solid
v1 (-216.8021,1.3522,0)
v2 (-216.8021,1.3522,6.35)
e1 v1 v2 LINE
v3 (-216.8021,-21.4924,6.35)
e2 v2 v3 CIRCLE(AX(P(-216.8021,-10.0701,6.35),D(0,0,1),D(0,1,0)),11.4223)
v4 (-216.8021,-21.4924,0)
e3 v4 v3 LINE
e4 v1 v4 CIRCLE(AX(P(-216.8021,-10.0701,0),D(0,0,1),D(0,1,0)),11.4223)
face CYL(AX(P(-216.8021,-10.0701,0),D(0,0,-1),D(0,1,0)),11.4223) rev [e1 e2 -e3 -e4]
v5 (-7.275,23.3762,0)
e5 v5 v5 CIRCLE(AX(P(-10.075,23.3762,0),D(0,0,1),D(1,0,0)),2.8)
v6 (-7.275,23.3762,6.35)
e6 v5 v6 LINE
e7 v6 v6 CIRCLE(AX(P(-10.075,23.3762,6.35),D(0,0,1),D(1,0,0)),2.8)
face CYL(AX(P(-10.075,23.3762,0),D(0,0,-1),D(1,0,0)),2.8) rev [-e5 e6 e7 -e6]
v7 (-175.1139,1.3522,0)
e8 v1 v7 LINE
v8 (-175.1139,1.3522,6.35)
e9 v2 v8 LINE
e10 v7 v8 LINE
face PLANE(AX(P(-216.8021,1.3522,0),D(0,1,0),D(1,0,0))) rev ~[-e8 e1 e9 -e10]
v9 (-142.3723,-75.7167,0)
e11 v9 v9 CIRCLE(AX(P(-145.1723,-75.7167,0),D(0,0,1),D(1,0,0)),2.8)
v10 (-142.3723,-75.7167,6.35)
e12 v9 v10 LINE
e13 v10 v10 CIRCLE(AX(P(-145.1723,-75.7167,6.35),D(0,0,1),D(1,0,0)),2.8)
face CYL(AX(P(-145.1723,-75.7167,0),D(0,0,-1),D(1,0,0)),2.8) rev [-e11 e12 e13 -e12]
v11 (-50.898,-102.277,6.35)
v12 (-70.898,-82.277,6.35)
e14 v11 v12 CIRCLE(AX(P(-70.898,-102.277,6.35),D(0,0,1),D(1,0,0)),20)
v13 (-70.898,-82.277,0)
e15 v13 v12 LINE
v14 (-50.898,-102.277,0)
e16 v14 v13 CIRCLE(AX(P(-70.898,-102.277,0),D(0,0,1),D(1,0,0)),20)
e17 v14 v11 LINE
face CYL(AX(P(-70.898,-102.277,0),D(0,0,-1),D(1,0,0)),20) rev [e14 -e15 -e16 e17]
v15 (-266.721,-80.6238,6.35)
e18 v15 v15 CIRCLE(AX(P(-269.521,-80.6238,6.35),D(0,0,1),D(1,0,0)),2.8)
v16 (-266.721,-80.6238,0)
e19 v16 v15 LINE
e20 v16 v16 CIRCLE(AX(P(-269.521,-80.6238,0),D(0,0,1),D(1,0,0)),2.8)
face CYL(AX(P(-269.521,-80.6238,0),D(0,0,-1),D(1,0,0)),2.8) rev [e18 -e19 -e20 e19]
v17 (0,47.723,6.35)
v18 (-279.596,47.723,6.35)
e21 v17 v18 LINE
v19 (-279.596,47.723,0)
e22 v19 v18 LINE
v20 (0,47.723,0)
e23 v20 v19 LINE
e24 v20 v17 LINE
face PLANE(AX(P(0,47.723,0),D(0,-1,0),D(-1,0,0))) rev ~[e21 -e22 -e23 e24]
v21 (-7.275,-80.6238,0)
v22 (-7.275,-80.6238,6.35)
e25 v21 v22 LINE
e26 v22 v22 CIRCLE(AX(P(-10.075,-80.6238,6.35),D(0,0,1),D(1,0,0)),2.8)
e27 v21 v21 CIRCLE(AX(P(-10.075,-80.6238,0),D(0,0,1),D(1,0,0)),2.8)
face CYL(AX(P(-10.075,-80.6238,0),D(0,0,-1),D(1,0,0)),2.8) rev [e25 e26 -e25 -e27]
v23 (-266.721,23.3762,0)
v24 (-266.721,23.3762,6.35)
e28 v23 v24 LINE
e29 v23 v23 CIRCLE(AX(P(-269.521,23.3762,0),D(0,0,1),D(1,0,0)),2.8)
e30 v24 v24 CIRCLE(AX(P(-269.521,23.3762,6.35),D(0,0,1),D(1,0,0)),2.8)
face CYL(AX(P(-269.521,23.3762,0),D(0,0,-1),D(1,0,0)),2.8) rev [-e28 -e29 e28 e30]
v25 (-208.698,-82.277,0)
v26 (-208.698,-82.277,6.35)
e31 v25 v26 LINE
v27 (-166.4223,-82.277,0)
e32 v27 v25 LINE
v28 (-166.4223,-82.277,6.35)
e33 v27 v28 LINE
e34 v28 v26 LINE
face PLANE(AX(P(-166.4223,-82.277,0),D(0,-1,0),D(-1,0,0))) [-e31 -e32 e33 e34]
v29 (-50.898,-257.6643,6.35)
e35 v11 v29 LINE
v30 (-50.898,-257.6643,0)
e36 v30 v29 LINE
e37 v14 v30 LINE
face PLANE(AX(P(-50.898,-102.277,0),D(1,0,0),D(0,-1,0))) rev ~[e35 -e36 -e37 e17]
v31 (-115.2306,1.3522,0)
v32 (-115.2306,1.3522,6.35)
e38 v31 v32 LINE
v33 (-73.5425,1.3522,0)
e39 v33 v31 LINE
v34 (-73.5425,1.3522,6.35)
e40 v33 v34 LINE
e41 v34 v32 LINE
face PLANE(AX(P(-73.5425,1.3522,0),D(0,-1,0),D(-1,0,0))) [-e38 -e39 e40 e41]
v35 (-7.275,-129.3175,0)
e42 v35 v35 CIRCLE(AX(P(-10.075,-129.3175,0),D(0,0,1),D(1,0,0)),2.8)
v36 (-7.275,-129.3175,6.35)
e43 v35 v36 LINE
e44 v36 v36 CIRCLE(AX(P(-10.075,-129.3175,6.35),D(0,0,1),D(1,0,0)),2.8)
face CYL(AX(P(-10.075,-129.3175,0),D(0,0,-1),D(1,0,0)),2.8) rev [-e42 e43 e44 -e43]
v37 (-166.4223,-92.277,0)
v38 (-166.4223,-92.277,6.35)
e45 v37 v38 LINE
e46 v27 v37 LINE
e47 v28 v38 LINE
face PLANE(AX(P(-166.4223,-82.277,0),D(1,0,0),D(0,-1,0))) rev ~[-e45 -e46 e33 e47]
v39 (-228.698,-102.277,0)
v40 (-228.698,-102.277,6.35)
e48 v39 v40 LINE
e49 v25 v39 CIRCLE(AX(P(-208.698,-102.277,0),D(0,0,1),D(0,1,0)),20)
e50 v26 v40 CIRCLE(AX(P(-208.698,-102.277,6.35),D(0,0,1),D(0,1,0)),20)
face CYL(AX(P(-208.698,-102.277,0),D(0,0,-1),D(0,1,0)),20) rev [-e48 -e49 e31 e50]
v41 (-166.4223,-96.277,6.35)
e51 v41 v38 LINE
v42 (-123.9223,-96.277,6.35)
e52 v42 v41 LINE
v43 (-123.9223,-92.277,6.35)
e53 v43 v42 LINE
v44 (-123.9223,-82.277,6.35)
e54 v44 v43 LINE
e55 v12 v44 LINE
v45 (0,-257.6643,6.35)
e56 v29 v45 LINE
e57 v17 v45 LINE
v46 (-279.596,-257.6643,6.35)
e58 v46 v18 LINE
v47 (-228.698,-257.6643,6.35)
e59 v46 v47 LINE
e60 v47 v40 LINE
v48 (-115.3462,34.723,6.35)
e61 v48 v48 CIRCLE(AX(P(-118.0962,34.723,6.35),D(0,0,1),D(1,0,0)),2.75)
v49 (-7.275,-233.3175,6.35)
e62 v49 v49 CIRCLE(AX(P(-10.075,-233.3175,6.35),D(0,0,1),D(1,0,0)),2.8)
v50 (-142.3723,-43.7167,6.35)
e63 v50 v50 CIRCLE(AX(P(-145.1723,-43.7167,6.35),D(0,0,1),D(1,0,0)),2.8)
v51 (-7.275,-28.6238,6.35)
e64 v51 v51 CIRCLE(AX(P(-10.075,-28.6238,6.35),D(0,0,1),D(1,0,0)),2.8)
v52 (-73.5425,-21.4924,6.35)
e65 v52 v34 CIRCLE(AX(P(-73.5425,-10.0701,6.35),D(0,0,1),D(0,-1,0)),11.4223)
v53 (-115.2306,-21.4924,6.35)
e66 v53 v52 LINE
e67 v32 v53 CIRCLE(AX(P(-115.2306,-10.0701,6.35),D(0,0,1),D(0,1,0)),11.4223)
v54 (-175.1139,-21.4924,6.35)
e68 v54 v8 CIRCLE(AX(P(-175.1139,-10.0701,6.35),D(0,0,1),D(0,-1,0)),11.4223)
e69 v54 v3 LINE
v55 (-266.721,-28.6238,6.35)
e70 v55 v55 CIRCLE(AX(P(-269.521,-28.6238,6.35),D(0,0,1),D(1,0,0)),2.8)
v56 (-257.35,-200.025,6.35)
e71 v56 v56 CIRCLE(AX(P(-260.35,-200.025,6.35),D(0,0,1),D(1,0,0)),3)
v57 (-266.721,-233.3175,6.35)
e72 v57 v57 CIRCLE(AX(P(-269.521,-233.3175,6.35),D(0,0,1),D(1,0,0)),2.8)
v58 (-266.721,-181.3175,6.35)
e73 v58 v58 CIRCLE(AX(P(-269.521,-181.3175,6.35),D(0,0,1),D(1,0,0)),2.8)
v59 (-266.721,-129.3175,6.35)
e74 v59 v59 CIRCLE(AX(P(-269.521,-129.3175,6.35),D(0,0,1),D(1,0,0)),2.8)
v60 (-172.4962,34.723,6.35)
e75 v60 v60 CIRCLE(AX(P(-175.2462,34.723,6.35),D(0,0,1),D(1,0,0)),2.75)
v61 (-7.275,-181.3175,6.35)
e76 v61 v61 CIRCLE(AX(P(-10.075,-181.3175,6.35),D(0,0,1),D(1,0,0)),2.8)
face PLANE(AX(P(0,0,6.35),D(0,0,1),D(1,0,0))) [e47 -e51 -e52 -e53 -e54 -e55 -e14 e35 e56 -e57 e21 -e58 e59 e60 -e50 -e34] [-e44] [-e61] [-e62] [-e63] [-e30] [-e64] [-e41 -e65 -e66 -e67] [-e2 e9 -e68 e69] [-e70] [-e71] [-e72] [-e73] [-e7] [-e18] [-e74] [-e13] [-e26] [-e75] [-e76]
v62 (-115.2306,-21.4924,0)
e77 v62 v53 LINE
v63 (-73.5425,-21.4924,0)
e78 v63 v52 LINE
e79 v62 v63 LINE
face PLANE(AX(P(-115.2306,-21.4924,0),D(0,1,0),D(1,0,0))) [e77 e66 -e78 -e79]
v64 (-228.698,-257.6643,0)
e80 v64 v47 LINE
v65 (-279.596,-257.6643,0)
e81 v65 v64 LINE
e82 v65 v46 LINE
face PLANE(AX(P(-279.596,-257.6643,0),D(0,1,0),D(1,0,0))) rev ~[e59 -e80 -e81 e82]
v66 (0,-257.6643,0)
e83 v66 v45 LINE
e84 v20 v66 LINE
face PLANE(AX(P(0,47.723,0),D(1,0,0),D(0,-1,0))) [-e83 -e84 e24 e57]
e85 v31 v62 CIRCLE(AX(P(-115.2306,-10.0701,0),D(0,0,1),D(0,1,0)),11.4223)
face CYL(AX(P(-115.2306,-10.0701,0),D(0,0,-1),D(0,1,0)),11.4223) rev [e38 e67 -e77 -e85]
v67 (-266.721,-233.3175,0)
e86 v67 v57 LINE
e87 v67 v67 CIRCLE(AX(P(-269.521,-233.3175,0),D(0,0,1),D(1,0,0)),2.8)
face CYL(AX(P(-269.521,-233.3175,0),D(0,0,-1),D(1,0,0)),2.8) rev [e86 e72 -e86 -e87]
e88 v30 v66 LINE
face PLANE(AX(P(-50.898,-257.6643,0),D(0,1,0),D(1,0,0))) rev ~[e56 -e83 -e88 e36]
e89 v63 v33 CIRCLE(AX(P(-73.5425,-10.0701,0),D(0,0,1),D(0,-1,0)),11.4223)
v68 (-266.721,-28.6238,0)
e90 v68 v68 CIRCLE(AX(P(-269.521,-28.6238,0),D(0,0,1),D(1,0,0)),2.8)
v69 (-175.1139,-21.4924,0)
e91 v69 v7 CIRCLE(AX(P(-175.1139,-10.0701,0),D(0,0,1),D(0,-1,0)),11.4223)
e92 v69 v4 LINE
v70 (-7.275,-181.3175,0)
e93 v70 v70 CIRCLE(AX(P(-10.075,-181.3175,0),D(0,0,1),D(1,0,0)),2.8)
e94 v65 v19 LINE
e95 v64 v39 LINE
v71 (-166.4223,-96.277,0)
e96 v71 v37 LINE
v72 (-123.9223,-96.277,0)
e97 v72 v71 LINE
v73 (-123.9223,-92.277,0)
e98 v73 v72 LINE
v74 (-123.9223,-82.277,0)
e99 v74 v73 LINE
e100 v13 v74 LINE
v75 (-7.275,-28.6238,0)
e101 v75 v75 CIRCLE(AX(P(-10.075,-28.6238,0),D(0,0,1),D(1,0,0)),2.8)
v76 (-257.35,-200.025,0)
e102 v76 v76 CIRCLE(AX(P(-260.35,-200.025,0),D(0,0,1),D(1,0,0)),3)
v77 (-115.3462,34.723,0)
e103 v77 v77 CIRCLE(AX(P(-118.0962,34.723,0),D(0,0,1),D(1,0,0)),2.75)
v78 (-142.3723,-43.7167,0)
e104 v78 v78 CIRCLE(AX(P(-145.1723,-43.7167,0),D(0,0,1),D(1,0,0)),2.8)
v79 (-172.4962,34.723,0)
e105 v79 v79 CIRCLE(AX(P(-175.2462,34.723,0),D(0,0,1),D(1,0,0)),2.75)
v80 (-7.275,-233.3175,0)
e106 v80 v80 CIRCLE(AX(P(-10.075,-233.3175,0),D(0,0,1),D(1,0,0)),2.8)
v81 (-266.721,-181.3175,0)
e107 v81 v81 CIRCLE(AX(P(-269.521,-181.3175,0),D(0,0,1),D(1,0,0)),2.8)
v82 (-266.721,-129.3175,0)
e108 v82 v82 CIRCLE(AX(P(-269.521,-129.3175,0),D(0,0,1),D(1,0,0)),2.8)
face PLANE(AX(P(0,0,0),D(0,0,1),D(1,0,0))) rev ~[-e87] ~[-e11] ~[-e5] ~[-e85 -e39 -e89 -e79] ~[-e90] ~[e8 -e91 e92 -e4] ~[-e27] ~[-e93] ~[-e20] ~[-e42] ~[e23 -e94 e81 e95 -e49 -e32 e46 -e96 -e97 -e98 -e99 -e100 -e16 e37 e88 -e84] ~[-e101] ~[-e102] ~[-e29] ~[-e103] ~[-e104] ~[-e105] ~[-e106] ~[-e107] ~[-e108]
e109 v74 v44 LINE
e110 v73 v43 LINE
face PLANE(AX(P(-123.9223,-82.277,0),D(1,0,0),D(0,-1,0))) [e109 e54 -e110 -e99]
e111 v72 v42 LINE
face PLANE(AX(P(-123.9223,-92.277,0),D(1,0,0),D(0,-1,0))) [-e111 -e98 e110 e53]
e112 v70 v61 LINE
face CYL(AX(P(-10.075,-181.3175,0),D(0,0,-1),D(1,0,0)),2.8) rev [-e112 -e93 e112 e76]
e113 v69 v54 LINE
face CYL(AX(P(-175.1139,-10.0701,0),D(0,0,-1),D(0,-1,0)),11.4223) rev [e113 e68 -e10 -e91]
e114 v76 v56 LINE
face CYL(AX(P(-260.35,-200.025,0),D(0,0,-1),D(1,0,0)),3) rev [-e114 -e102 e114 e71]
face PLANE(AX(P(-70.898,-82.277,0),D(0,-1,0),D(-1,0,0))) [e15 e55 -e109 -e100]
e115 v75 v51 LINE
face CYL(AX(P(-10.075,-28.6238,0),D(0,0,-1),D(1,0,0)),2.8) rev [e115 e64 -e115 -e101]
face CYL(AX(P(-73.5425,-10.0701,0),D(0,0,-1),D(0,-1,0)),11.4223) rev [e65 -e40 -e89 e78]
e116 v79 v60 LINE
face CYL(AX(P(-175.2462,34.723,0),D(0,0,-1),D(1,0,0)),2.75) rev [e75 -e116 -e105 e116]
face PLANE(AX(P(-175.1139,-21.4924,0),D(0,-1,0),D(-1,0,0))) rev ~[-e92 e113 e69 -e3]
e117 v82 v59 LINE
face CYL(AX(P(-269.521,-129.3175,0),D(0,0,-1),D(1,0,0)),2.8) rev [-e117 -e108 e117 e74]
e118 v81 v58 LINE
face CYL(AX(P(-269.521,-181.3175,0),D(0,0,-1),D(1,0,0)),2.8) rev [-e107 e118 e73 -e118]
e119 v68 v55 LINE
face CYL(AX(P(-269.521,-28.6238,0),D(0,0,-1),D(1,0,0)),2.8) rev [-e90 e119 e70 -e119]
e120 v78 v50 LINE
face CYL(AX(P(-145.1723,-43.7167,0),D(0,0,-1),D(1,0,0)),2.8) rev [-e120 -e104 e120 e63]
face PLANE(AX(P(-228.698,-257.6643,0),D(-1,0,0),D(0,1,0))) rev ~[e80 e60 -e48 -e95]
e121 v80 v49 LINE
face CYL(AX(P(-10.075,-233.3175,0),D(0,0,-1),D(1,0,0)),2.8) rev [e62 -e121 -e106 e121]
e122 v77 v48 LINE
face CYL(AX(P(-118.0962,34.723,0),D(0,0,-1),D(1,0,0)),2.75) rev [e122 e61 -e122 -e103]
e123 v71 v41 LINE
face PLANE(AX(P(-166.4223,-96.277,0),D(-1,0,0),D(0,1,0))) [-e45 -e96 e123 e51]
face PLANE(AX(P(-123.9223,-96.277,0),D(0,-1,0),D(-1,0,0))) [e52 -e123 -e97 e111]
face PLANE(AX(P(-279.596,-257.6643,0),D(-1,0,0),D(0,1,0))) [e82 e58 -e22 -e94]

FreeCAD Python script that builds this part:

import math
import FreeCAD as App
import Part
import Sketcher

V = App.Vector
Q = App.Units.Quantity

doc = App.newDocument("Part")
body = doc.addObject("PartDesign::Body", "Body")

sketch1 = doc.addObject("Sketcher::SketchObject", "Sketch")
body.addObject(sketch1)
sketch1.AttachmentSupport = (doc.XY_Plane, [""])
sketch1.MapMode = "FlatFace"
sketch1.addGeometry(Part.LineSegment(V(-279.6, 47.7, 0), V(-279.6, -257.7, 0)), False)
sketch1.addGeometry(Part.LineSegment(V(-279.6, -257.7, 0), V(-228.7, -257.7, 0)), False)
sketch1.addGeometry(Part.LineSegment(V(-228.7, -257.7, 0), V(-228.7, -102.3, 0)), False)
sketch1.addGeometry(Part.ArcOfCircle(Part.Circle(V(-208.7, -102.3, 0), V(0, 0, 1), 20), math.radians(90), math.radians(180)), False)
sketch1.addGeometry(Part.LineSegment(V(-208.7, -82.3, 0), V(-166.4, -82.3, 0)), False)
sketch1.addGeometry(Part.LineSegment(V(-166.4, -82.3, 0), V(-166.4, -96.3, 0)), False)
sketch1.addGeometry(Part.LineSegment(V(-166.4, -96.3, 0), V(-123.9, -96.3, 0)), False)
sketch1.addGeometry(Part.LineSegment(V(-123.9, -96.3, 0), V(-123.9, -82.3, 0)), False)
sketch1.addGeometry(Part.LineSegment(V(-123.9, -82.3, 0), V(-70.9, -82.3, 0)), False)
sketch1.addGeometry(Part.ArcOfCircle(Part.Circle(V(-70.9, -102.3, 0), V(0, 0, 1), 20), math.radians(0), math.radians(90)), False)
sketch1.addGeometry(Part.LineSegment(V(-50.9, -102.3, 0), V(-50.9, -257.7, 0)), False)
sketch1.addGeometry(Part.LineSegment(V(-50.9, -257.7, 0), V(0, -257.7, 0)), False)
sketch1.addGeometry(Part.LineSegment(V(0, -257.7, 0), V(0, 47.7, 0)), False)
sketch1.addGeometry(Part.LineSegment(V(0, 47.7, 0), V(-279.6, 47.7, 0)), False)
sketch1.addGeometry(Part.Circle(V(-269.5, -233.3, 0), V(0, 0, 1), 2.8), False)
sketch1.addGeometry(Part.Circle(V(-269.5, -181.3, 0), V(0, 0, 1), 2.8), False)
sketch1.addGeometry(Part.Circle(V(-260.4, -200, 0), V(0, 0, 1), 3), False)
sketch1.addGeometry(Part.Circle(V(-269.5, -129.3, 0), V(0, 0, 1), 2.8), False)
sketch1.addGeometry(Part.Circle(V(-10.1, -233.3, 0), V(0, 0, 1), 2.8), False)
sketch1.addGeometry(Part.Circle(V(-10.1, -181.3, 0), V(0, 0, 1), 2.8), False)
sketch1.addGeometry(Part.Circle(V(-10.1, -129.3, 0), V(0, 0, 1), 2.8), False)
sketch1.addGeometry(Part.Circle(V(-269.5, -80.6, 0), V(0, 0, 1), 2.8), False)
sketch1.addGeometry(Part.Circle(V(-145.2, -75.7, 0), V(0, 0, 1), 2.8), False)
sketch1.addGeometry(Part.Circle(V(-145.2, -43.7, 0), V(0, 0, 1), 2.8), False)
sketch1.addGeometry(Part.Circle(V(-269.5, -28.6, 0), V(0, 0, 1), 2.8), False)
sketch1.addGeometry(Part.Circle(V(-269.5, 23.4, 0), V(0, 0, 1), 2.8), False)
sketch1.addGeometry(Part.ArcOfCircle(Part.Circle(V(-216.8, -10.1, 0), V(0, 0, 1), 11.4), math.radians(90), math.radians(270)), False)
sketch1.addGeometry(Part.LineSegment(V(-216.8, 1.4, 0), V(-175.1, 1.4, 0)), False)
sketch1.addGeometry(Part.ArcOfCircle(Part.Circle(V(-175.1, -10.1, 0), V(0, 0, 1), 11.4), math.radians(-90), math.radians(90)), False)
sketch1.addGeometry(Part.LineSegment(V(-175.1, -21.5, 0), V(-216.8, -21.5, 0)), False)
sketch1.addGeometry(Part.Circle(V(-175.2, 34.7, 0), V(0, 0, 1), 2.8), False)
sketch1.addGeometry(Part.Circle(V(-10.1, -80.6, 0), V(0, 0, 1), 2.8), False)
sketch1.addGeometry(Part.LineSegment(V(-115.2, 1.4, 0), V(-73.5, 1.4, 0)), False)
sketch1.addGeometry(Part.ArcOfCircle(Part.Circle(V(-73.5, -10.1, 0), V(0, 0, 1), 11.4), math.radians(-90), math.radians(90)), False)
sketch1.addGeometry(Part.LineSegment(V(-73.5, -21.5, 0), V(-115.2, -21.5, 0)), False)
sketch1.addGeometry(Part.ArcOfCircle(Part.Circle(V(-115.2, -10.1, 0), V(0, 0, 1), 11.4), math.radians(90), math.radians(270)), False)
sketch1.addGeometry(Part.Circle(V(-118.1, 34.7, 0), V(0, 0, 1), 2.8), False)
sketch1.addGeometry(Part.Circle(V(-10.1, -28.6, 0), V(0, 0, 1), 2.8), False)
sketch1.addGeometry(Part.Circle(V(-10.1, 23.4, 0), V(0, 0, 1), 2.8), False)
sketch1.addConstraint(Sketcher.Constraint("Coincident", 0, 2, 1, 1))
sketch1.addConstraint(Sketcher.Constraint("Coincident", 1, 2, 2, 1))
sketch1.addConstraint(Sketcher.Constraint("Tangent", 2, 2, 3, 2))
sketch1.addConstraint(Sketcher.Constraint("Tangent", 3, 1, 4, 1))
sketch1.addConstraint(Sketcher.Constraint("Coincident", 4, 2, 5, 1))
sketch1.addConstraint(Sketcher.Constraint("Coincident", 5, 2, 6, 1))
sketch1.addConstraint(Sketcher.Constraint("Coincident", 6, 2, 7, 1))
sketch1.addConstraint(Sketcher.Constraint("Coincident", 7, 2, 8, 1))
sketch1.addConstraint(Sketcher.Constraint("Tangent", 8, 2, 9, 2))
sketch1.addConstraint(Sketcher.Constraint("Tangent", 9, 1, 10, 1))
sketch1.addConstraint(Sketcher.Constraint("Coincident", 10, 2, 11, 1))
sketch1.addConstraint(Sketcher.Constraint("Coincident", 11, 2, 12, 1))
sketch1.addConstraint(Sketcher.Constraint("Coincident", 12, 2, 13, 1))
sketch1.addConstraint(Sketcher.Constraint("Coincident", 13, 2, 0, 1))
sketch1.addConstraint(Sketcher.Constraint("Tangent", 26, 1, 27, 1))
sketch1.addConstraint(Sketcher.Constraint("Tangent", 27, 2, 28, 2))
sketch1.addConstraint(Sketcher.Constraint("Tangent", 28, 1, 29, 1))
sketch1.addConstraint(Sketcher.Constraint("Tangent", 29, 2, 26, 2))
sketch1.addConstraint(Sketcher.Constraint("Tangent", 32, 2, 33, 2))
sketch1.addConstraint(Sketcher.Constraint("Tangent", 33, 1, 34, 1))
sketch1.addConstraint(Sketcher.Constraint("Tangent", 34, 2, 35, 2))
sketch1.addConstraint(Sketcher.Constraint("Tangent", 35, 1, 32, 1))
sketch1.addConstraint(Sketcher.Constraint("Vertical", 0))
sketch1.addConstraint(Sketcher.Constraint("Horizontal", 1))
sketch1.addConstraint(Sketcher.Constraint("Vertical", 2))
sketch1.addConstraint(Sketcher.Constraint("Horizontal", 4))
sketch1.addConstraint(Sketcher.Constraint("Vertical", 5))
sketch1.addConstraint(Sketcher.Constraint("Horizontal", 6))
sketch1.addConstraint(Sketcher.Constraint("Vertical", 7))
sketch1.addConstraint(Sketcher.Constraint("Horizontal", 8))
sketch1.addConstraint(Sketcher.Constraint("Vertical", 10))
sketch1.addConstraint(Sketcher.Constraint("Horizontal", 11))
sketch1.addConstraint(Sketcher.Constraint("Vertical", 12))
sketch1.addConstraint(Sketcher.Constraint("Horizontal", 13))
sketch1.addConstraint(Sketcher.Constraint("Horizontal", 27))
sketch1.addConstraint(Sketcher.Constraint("Horizontal", 29))
sketch1.addConstraint(Sketcher.Constraint("Horizontal", 32))
sketch1.addConstraint(Sketcher.Constraint("Horizontal", 34))
sketch1.addConstraint(Sketcher.Constraint("Equal", 3, 9))
sketch1.addConstraint(Sketcher.Constraint("Equal", 14, 15))
sketch1.addConstraint(Sketcher.Constraint("Equal", 15, 17))
sketch1.addConstraint(Sketcher.Constraint("Equal", 17, 18))
sketch1.addConstraint(Sketcher.Constraint("Equal", 18, 19))
sketch1.addConstraint(Sketcher.Constraint("Equal", 19, 20))
sketch1.addConstraint(Sketcher.Constraint("Equal", 20, 21))
sketch1.addConstraint(Sketcher.Constraint("Equal", 21, 22))
sketch1.addConstraint(Sketcher.Constraint("Equal", 22, 23))
sketch1.addConstraint(Sketcher.Constraint("Equal", 23, 24))
sketch1.addConstraint(Sketcher.Constraint("Equal", 24, 25))
sketch1.addConstraint(Sketcher.Constraint("Equal", 25, 31))
sketch1.addConstraint(Sketcher.Constraint("Equal", 28, 33))
sketch1.addConstraint(Sketcher.Constraint("Equal", 30, 36))
sketch1.addConstraint(Sketcher.Constraint("Equal", 31, 37))
sketch1.addConstraint(Sketcher.Constraint("Equal", 37, 38))
sketch1.addConstraint(Sketcher.Constraint("PointOnObject", 11, 2, -2))
sketch1.addConstraint(Sketcher.Constraint("Horizontal", 3, 3, 9, 3))
sketch1.addConstraint(Sketcher.Constraint("Horizontal", 14, 3, 18, 3))
sketch1.addConstraint(Sketcher.Constraint("Horizontal", 15, 3, 19, 3))
sketch1.addConstraint(Sketcher.Constraint("Horizontal", 17, 3, 20, 3))
sketch1.addConstraint(Sketcher.Constraint("Horizontal", 21, 3, 31, 3))
sketch1.addConstraint(Sketcher.Constraint("Horizontal", 28, 3, 33, 3))
sketch1.addConstraint(Sketcher.Constraint("Horizontal", 30, 3, 36, 3))
sketch1.addConstraint(Sketcher.Constraint("Horizontal", 24, 3, 37, 3))
sketch1.addConstraint(Sketcher.Constraint("Horizontal", 25, 3, 38, 3))
sketch1.addConstraint(Sketcher.Constraint("Horizontal", 1, 2, 10, 2))
sketch1.addConstraint(Sketcher.Constraint("Vertical", 14, 3, 15, 3))
sketch1.addConstraint(Sketcher.Constraint("Vertical", 15, 3, 17, 3))
sketch1.addConstraint(Sketcher.Constraint("Vertical", 18, 3, 19, 3))
sketch1.addConstraint(Sketcher.Constraint("Vertical", 19, 3, 20, 3))
sketch1.addConstraint(Sketcher.Constraint("Vertical", 17, 3, 21, 3))
sketch1.addConstraint(Sketcher.Constraint("Vertical", 22, 3, 23, 3))
sketch1.addConstraint(Sketcher.Constraint("Vertical", 21, 3, 24, 3))
sketch1.addConstraint(Sketcher.Constraint("Vertical", 24, 3, 25, 3))
sketch1.addConstraint(Sketcher.Constraint("Vertical", 20, 3, 31, 3))
sketch1.addConstraint(Sketcher.Constraint("Vertical", 31, 3, 37, 3))
sketch1.addConstraint(Sketcher.Constraint("Vertical", 37, 3, 38, 3))
sketch1.addConstraint(Sketcher.Constraint("Equal", 1, 11))
sketch1.addConstraint(Sketcher.Constraint("Equal", 29, 32))
sketch1.addConstraint(Sketcher.Constraint("Radius", 3, Q("20 mm")))
sketch1.addConstraint(Sketcher.Constraint("Diameter", 14, Q("5.6 mm")))
sketch1.addConstraint(Sketcher.Constraint("Diameter", 30, Q("5.5 mm")))
sketch1.addConstraint(Sketcher.Constraint("Diameter", 16, Q("6 mm")))
sketch1.addConstraint(Sketcher.Constraint("DistanceY", 22, 3, 23, 3, Q("32 mm")))
sketch1.addConstraint(Sketcher.Constraint("DistanceX", 13, 2, 13, 1, Q("279.596 mm")))
sketch1.addConstraint(Sketcher.Constraint("DistanceY", 5, 2, 5, 1, Q("14 mm")))
sketch1.addConstraint(Sketcher.Constraint("DistanceX", 6, 1, 6, 2, Q("42.5 mm")))
sketch1.addConstraint(Sketcher.Constraint("DistanceY", 0, 2, 0, 1, Q("305.3873 mm")))
sketch1.addConstraint(Sketcher.Constraint("DistanceY", 14, 3, 15, 3, Q("52 mm")))
sketch1.addConstraint(Sketcher.Constraint("DistanceY", 15, 3, 17, 3, Q("52 mm")))
sketch1.addConstraint(Sketcher.Constraint("DistanceY", 21, 3, 24, 3, Q("52 mm")))
sketch1.addConstraint(Sketcher.Constraint("DistanceY", 24, 3, 25, 3, Q("52 mm")))
sketch1.addConstraint(Sketcher.Constraint("DistanceY", 36, 3, 12, 2, Q("13 mm")))
sketch1.addConstraint(Sketcher.Constraint("Radius", 26, Q("11.4223 mm")))
sketch1.addConstraint(Sketcher.Constraint("DistanceX", 3, 3, 9, 3, Q("137.8 mm")))
sketch1.addConstraint(Sketcher.Constraint("DistanceX", 32, 1, 32, 2, Q("41.688 mm")))
sketch1.addConstraint(Sketcher.Constraint("DistanceX", 16, 3, -1, 1, Q("260.35 mm")))
sketch1.addConstraint(Sketcher.Constraint("DistanceY", 26, 3, -1, 1, Q("10.07 mm")))
sketch1.addConstraint(Sketcher.Constraint("DistanceX", 30, 3, 36, 3, Q("57.15 mm")))
sketch1.addConstraint(Sketcher.Constraint("DistanceX", 4, 2, 22, 3, Q("21.25 mm")))
sketch1.addConstraint(Sketcher.Constraint("DistanceX", 4, 1, 4, 2, Q("42.2757 mm")))
sketch1.addConstraint(Sketcher.Constraint("DistanceY", 2, 1, 2, 2, Q("155.3873 mm")))
sketch1.addConstraint(Sketcher.Constraint("DistanceY", 3, 3, -1, 1, Q("102.277 mm")))
sketch1.addConstraint(Sketcher.Constraint("DistanceX", 14, 3, -1, 1, Q("269.521 mm")))
sketch1.addConstraint(Sketcher.Constraint("DistanceY", 16, 3, -1, 1, Q("200.025 mm")))
sketch1.addConstraint(Sketcher.Constraint("DistanceX", 18, 3, -1, 1, Q("10.075 mm")))
sketch1.addConstraint(Sketcher.Constraint("DistanceX", 26, 3, -1, 1, Q("216.802 mm")))
sketch1.addConstraint(Sketcher.Constraint("DistanceY", 21, 3, 22, 3, Q("4.907 mm")))
sketch1.addConstraint(Sketcher.Constraint("DistanceX", 26, 3, 30, 3, Q("41.556 mm")))
sketch1.addConstraint(Sketcher.Constraint("DistanceY", 26, 1, 25, 3, Q("22.024 mm")))
sketch1.addConstraint(Sketcher.Constraint("DistanceY", 14, 3, -1, 1, Q("233.3175 mm")))
sketch1.addConstraint(Sketcher.Constraint("DistanceX", 33, 3, -1, 1, Q("73.5425 mm")))
pad1 = doc.addObject("PartDesign::Pad", "Pad")
body.addObject(pad1)
pad1.Profile = sketch1
pad1.Length = 6.35

doc.recompute()
